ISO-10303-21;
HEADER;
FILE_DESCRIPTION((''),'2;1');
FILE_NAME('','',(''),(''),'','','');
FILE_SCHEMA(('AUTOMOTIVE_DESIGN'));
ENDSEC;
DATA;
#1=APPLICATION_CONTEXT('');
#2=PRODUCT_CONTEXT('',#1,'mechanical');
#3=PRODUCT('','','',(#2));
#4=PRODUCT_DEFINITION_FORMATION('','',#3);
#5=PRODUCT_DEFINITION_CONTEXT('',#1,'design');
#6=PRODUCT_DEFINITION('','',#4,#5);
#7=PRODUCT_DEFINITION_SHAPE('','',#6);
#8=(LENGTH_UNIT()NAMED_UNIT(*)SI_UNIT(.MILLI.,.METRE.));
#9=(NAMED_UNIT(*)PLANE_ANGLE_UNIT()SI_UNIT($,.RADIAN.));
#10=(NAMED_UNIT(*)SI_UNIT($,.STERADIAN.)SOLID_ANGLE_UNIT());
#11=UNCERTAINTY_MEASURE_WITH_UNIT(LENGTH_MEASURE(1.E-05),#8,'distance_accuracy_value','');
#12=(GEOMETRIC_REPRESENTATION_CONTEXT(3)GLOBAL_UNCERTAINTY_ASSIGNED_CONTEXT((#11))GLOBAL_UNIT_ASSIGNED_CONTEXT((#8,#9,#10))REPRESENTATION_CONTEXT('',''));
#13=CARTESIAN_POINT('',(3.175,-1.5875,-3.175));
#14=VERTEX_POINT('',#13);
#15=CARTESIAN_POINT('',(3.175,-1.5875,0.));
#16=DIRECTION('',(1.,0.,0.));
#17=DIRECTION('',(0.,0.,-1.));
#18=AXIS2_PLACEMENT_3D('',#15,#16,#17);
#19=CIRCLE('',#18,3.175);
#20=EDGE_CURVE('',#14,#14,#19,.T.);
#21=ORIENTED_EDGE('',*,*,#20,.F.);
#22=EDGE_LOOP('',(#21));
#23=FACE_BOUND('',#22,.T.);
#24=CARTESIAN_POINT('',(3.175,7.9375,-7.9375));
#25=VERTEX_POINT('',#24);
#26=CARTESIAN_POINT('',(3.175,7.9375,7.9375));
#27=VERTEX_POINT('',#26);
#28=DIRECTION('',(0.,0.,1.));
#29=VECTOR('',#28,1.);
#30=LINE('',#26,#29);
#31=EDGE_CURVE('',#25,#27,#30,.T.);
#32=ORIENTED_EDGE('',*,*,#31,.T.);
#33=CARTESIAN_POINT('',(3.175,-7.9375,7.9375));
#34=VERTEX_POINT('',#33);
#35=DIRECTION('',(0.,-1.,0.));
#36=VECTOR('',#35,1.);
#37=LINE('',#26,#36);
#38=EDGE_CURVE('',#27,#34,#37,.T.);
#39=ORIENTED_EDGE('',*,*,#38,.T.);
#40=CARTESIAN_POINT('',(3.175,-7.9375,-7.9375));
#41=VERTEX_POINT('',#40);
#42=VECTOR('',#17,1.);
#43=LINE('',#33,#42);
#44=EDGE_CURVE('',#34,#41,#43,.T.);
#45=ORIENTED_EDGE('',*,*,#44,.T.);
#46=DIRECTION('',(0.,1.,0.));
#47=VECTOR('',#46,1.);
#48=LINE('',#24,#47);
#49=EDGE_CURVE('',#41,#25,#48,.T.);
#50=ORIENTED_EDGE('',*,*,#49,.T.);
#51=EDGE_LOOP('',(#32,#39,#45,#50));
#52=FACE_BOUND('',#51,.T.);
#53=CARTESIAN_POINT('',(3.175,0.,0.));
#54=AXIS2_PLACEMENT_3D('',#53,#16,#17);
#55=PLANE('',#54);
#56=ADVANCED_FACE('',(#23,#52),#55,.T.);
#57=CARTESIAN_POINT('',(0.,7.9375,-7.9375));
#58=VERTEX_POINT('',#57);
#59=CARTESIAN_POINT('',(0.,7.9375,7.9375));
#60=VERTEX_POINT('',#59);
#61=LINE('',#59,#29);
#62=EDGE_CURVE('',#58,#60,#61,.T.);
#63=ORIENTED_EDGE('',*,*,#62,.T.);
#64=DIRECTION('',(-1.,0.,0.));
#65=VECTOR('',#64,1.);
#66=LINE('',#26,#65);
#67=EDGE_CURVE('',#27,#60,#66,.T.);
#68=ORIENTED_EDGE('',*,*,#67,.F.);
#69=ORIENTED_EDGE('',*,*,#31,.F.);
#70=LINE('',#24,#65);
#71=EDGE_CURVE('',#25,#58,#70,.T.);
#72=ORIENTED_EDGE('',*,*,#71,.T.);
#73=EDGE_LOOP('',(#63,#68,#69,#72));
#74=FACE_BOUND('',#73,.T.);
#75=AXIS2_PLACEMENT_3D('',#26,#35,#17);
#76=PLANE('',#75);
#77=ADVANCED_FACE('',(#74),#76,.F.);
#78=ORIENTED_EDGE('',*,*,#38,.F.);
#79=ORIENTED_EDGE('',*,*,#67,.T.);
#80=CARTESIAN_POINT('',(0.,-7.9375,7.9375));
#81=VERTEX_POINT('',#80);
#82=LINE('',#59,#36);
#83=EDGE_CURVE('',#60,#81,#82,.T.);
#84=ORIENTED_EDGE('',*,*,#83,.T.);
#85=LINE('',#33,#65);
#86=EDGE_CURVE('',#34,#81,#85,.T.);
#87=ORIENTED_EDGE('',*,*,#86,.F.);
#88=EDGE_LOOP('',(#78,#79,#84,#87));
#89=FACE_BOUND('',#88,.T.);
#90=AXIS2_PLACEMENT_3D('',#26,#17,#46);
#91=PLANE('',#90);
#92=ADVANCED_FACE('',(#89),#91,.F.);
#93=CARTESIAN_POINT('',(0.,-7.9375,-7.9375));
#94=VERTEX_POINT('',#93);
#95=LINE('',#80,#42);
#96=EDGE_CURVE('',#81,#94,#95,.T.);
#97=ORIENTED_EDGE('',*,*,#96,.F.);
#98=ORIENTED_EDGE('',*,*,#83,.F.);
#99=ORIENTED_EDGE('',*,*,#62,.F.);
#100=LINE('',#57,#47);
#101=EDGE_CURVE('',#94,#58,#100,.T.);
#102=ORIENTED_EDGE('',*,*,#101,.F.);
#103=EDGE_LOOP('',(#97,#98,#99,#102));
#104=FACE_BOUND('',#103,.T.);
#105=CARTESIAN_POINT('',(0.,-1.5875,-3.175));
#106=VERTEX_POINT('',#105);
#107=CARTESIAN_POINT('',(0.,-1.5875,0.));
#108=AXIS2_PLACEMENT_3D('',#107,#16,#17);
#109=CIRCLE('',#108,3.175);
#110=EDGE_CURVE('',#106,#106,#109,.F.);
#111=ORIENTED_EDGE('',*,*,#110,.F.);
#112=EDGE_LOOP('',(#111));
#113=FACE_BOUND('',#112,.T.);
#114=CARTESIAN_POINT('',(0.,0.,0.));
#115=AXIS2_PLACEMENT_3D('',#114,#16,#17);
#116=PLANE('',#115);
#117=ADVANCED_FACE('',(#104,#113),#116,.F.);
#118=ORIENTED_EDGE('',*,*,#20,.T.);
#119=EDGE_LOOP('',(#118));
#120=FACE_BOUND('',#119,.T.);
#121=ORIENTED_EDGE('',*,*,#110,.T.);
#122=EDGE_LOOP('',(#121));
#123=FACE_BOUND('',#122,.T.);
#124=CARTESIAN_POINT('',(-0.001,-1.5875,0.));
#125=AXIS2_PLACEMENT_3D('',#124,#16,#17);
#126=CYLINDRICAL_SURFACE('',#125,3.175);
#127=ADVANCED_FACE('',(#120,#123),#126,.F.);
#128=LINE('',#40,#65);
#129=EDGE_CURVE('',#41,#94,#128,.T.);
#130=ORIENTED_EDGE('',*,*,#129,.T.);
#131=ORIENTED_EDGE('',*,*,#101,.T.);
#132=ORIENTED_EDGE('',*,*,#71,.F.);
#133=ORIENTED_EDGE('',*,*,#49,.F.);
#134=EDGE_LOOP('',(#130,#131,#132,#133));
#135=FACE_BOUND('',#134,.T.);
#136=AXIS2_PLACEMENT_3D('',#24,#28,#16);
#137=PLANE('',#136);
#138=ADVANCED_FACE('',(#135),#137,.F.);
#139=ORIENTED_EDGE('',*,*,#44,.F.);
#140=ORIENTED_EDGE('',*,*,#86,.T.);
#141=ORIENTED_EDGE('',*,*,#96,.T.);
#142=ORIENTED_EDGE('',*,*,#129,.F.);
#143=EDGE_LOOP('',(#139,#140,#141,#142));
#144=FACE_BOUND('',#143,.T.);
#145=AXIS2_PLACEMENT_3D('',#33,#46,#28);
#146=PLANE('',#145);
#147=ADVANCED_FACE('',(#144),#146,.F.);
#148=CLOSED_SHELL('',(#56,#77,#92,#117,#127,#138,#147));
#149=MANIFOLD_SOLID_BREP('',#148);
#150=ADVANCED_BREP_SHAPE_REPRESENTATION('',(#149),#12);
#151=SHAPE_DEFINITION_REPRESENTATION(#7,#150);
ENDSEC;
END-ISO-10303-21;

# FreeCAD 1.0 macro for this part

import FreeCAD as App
import Part
import Sketcher
Q = App.Units.Quantity


def add_polygon(sketch, points):
    """Adds a closed chain of lines whose ends are joined by coincident constraints."""
    first, n = sketch.GeometryCount, len(points)
    for a, b in zip(points, points[1:] + points[:1]):
        sketch.addGeometry(Part.LineSegment(App.Vector(*a, 0), App.Vector(*b, 0)), False)
    for i in range(n):
        sketch.addConstraint(Sketcher.Constraint("Coincident", first + i, 2, first + (i + 1) % n, 1))

doc = App.newDocument("Part")
body = doc.addObject("PartDesign::Body", "Body")

# Sketch on YZ plane
sketch1 = body.newObject("Sketcher::SketchObject", "Sketch")
sketch1.AttachmentSupport = (doc.getObject("YZ_Plane"), [""])
sketch1.MapMode = "FlatFace"
add_polygon(sketch1, [(7.9375, 7.9375), (-7.9375, 7.9375), (-7.9375, -7.9375), (7.9375, -7.9375)])  # lines 0-3
sketch1.addConstraint([
    Sketcher.Constraint("Horizontal", 0),
    Sketcher.Constraint("Vertical", 1),
    Sketcher.Constraint("Horizontal", 2),
    Sketcher.Constraint("Vertical", 3),
    Sketcher.Constraint("Symmetric", 0, 2, 2, 2, -1, 1),
    Sketcher.Constraint("Equal", 2, 1),
    Sketcher.Constraint("DistanceX", 0, 2, 0, 1, Q("0.625 in")),
])
pad1 = body.newObject("PartDesign::Pad", "Pad")
pad1.Profile = sketch1
pad1.Length = Q("0.125 in")

# Sketch on YZ plane
sketch2 = body.newObject("Sketcher::SketchObject", "Sketch001")
sketch2.AttachmentSupport = (doc.getObject("YZ_Plane"), [""])
sketch2.MapMode = "FlatFace"
sketch2.AttachmentOffset = App.Placement(App.Vector(0, 0, 0.125 * 25.4), App.Rotation())
sketch2.addGeometry(Part.Circle(App.Vector(-1.5875, 0, 0), App.Vector(0, 0, 1), 3.175), False)
sketch2.addConstraint([
    Sketcher.Constraint("PointOnObject", 0, 3, -1),
    Sketcher.Constraint("Diameter", 0, Q("0.25 in")),
    Sketcher.Constraint("DistanceX", 0, 3, -1, 1, Q("0.0625 in")),
])
pocket1 = body.newObject("PartDesign::Pocket", "Pocket")
pocket1.Profile = sketch2
pocket1.Type = "UpToFirst"

doc.recompute()
